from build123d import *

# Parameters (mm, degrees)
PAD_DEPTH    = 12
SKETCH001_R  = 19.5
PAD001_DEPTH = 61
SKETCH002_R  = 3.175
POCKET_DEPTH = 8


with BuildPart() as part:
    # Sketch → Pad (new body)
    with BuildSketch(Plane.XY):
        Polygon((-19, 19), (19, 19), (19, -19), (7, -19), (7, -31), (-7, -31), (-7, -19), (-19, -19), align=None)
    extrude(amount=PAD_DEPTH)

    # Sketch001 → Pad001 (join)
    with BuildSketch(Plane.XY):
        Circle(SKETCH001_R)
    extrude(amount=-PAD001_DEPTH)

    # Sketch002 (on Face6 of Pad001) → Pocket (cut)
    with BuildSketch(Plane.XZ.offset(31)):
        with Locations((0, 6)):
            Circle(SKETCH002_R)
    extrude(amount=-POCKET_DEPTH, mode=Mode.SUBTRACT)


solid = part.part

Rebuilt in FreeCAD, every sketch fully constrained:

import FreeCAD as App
import Part
import Sketcher

V = App.Vector

doc = App.newDocument("Part")
body = doc.addObject("PartDesign::Body", "Body")

# Sketch on XY plane
sketch1 = body.newObject("Sketcher::SketchObject", "Sketch")
sketch1.AttachmentSupport = (doc.getObject("XY_Plane"), [""])
sketch1.MapMode = "FlatFace"
sketch1.addGeometry([
    Part.LineSegment(V(19, 19, 0), V(-19, 19, 0)),  # 0
    Part.LineSegment(V(-19, 19, 0), V(-19, -19, 0)),  # 1
    Part.LineSegment(V(-19, -19, 0), V(-7, -19, 0)),  # 2
    Part.LineSegment(V(-7, -19, 0), V(-7, -31, 0)),  # 3
    Part.LineSegment(V(-7, -31, 0), V(7, -31, 0)),  # 4
    Part.LineSegment(V(7, -31, 0), V(7, -19, 0)),  # 5
    Part.LineSegment(V(7, -19, 0), V(19, -19, 0)),  # 6
    Part.LineSegment(V(19, -19, 0), V(19, 19, 0)),  # 7
], False)
sketch1.addConstraint([
    Sketcher.Constraint("Coincident", 0, 2, 1, 1),
    Sketcher.Constraint("Coincident", 1, 2, 2, 1),
    Sketcher.Constraint("Coincident", 2, 2, 3, 1),
    Sketcher.Constraint("Coincident", 3, 2, 4, 1),
    Sketcher.Constraint("Coincident", 4, 2, 5, 1),
    Sketcher.Constraint("Coincident", 5, 2, 6, 1),
    Sketcher.Constraint("Coincident", 6, 2, 7, 1),
    Sketcher.Constraint("Coincident", 7, 2, 0, 1),
    Sketcher.Constraint("Horizontal", 0),
    Sketcher.Constraint("Vertical", 1),
    Sketcher.Constraint("Horizontal", 2),
    Sketcher.Constraint("Vertical", 3),
    Sketcher.Constraint("Horizontal", 4),
    Sketcher.Constraint("Vertical", 5),
    Sketcher.Constraint("Horizontal", 6),
    Sketcher.Constraint("Vertical", 7),
    Sketcher.Constraint("Symmetric", 0, 2, 6, 2, -1, 1),
    Sketcher.Constraint("Symmetric", 2, 2, 5, 2, -2),
    Sketcher.Constraint("Equal", 0, 1),
    Sketcher.Constraint("Equal", 6, 3),
    Sketcher.Constraint("DistanceX", 0, 2, 0, 1, 38.0),
    Sketcher.Constraint("DistanceX", 2, 1, 2, 2, 12.0),
])
pad1 = body.newObject("PartDesign::Pad", "Pad")
pad1.Profile = sketch1
pad1.Length = 12

# Sketch on XY plane
sketch2 = body.newObject("Sketcher::SketchObject", "Sketch001")
sketch2.AttachmentSupport = (doc.getObject("XY_Plane"), [""])
sketch2.MapMode = "FlatFace"
sketch2.addGeometry(Part.Circle(V(0, 0, 0), V(0, 0, 1), 19.5), False)
sketch2.addConstraint([
    Sketcher.Constraint("Coincident", 0, 3, -1, 1),
    Sketcher.Constraint("Diameter", 0, 39.0),
])
pad2 = body.newObject("PartDesign::Pad", "Pad001")
pad2.Profile = sketch2
pad2.Length = 61
pad2.Reversed = True

# Sketch on XZ plane
sketch3 = body.newObject("Sketcher::SketchObject", "Sketch002")
sketch3.AttachmentSupport = (doc.getObject("XZ_Plane"), [""])
sketch3.MapMode = "FlatFace"
sketch3.AttachmentOffset = App.Placement(V(0, 0, 31), App.Rotation())
sketch3.addGeometry(Part.Circle(V(0, 6, 0), V(0, 0, 1), 3.175), False)
sketch3.addConstraint([
    Sketcher.Constraint("PointOnObject", 0, 3, -2),
    Sketcher.Constraint("Diameter", 0, 6.35),
    Sketcher.Constraint("DistanceY", -1, 1, 0, 3, 6.0),
])
pocket1 = body.newObject("PartDesign::Pocket", "Pocket")
pocket1.Profile = sketch3
pocket1.Length = 8

doc.recompute()
